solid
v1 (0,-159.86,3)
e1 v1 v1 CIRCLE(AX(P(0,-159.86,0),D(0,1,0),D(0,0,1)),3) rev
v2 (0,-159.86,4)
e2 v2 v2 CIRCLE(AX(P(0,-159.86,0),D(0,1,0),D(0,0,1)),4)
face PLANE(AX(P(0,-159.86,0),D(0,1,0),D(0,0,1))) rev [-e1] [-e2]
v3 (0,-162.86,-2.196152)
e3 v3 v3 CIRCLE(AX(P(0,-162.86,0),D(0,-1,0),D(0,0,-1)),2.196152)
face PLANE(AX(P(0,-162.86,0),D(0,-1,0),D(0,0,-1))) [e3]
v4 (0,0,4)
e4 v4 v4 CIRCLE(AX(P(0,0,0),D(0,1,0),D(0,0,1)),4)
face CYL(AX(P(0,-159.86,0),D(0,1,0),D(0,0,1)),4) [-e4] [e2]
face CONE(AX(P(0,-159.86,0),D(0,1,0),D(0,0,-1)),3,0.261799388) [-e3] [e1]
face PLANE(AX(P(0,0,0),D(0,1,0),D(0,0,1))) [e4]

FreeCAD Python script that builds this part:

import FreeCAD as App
import Part
import Sketcher

V = App.Vector
Q = App.Units.Quantity

doc = App.newDocument("Part")
body = doc.addObject("PartDesign::Body", "Body")

# Sketch on XZ plane
sketch1 = doc.addObject("Sketcher::SketchObject", "Sketch")
body.addObject(sketch1)
sketch1.AttachmentSupport = (doc.XZ_Plane, [""])
sketch1.MapMode = "FlatFace"
sketch1.addGeometry(Part.Circle(V(0, 0, 0), V(0, 0, 1), 4), False)
sketch1.addConstraint([
    Sketcher.Constraint("Coincident", 0, 3, -1, 1),
    Sketcher.Constraint("Diameter", 0, Q("8 mm")),
])
pad1 = doc.addObject("PartDesign::Pad", "Pad")
body.addObject(pad1)
pad1.Profile = sketch1
pad1.Length = 159.86

# Sketch on XZ plane
sketch2 = doc.addObject("Sketcher::SketchObject", "Sketch001")
body.addObject(sketch2)
sketch2.AttachmentSupport = (doc.XZ_Plane, [""])
sketch2.MapMode = "FlatFace"
sketch2.AttachmentOffset = App.Placement(V(0, 0, 159.86), App.Rotation())
sketch2.addGeometry(Part.Circle(V(0, 0, 0), V(0, 0, 1), 3), False)
sketch2.addConstraint([
    Sketcher.Constraint("Coincident", 0, 3, -1, 1),
    Sketcher.Constraint("Diameter", 0, Q("6 mm")),
])
pad2 = doc.addObject("PartDesign::Pad", "Pad001")
body.addObject(pad2)
pad2.Profile = sketch2
pad2.Length = 3
pad2.TaperAngle = -15

doc.recompute()
